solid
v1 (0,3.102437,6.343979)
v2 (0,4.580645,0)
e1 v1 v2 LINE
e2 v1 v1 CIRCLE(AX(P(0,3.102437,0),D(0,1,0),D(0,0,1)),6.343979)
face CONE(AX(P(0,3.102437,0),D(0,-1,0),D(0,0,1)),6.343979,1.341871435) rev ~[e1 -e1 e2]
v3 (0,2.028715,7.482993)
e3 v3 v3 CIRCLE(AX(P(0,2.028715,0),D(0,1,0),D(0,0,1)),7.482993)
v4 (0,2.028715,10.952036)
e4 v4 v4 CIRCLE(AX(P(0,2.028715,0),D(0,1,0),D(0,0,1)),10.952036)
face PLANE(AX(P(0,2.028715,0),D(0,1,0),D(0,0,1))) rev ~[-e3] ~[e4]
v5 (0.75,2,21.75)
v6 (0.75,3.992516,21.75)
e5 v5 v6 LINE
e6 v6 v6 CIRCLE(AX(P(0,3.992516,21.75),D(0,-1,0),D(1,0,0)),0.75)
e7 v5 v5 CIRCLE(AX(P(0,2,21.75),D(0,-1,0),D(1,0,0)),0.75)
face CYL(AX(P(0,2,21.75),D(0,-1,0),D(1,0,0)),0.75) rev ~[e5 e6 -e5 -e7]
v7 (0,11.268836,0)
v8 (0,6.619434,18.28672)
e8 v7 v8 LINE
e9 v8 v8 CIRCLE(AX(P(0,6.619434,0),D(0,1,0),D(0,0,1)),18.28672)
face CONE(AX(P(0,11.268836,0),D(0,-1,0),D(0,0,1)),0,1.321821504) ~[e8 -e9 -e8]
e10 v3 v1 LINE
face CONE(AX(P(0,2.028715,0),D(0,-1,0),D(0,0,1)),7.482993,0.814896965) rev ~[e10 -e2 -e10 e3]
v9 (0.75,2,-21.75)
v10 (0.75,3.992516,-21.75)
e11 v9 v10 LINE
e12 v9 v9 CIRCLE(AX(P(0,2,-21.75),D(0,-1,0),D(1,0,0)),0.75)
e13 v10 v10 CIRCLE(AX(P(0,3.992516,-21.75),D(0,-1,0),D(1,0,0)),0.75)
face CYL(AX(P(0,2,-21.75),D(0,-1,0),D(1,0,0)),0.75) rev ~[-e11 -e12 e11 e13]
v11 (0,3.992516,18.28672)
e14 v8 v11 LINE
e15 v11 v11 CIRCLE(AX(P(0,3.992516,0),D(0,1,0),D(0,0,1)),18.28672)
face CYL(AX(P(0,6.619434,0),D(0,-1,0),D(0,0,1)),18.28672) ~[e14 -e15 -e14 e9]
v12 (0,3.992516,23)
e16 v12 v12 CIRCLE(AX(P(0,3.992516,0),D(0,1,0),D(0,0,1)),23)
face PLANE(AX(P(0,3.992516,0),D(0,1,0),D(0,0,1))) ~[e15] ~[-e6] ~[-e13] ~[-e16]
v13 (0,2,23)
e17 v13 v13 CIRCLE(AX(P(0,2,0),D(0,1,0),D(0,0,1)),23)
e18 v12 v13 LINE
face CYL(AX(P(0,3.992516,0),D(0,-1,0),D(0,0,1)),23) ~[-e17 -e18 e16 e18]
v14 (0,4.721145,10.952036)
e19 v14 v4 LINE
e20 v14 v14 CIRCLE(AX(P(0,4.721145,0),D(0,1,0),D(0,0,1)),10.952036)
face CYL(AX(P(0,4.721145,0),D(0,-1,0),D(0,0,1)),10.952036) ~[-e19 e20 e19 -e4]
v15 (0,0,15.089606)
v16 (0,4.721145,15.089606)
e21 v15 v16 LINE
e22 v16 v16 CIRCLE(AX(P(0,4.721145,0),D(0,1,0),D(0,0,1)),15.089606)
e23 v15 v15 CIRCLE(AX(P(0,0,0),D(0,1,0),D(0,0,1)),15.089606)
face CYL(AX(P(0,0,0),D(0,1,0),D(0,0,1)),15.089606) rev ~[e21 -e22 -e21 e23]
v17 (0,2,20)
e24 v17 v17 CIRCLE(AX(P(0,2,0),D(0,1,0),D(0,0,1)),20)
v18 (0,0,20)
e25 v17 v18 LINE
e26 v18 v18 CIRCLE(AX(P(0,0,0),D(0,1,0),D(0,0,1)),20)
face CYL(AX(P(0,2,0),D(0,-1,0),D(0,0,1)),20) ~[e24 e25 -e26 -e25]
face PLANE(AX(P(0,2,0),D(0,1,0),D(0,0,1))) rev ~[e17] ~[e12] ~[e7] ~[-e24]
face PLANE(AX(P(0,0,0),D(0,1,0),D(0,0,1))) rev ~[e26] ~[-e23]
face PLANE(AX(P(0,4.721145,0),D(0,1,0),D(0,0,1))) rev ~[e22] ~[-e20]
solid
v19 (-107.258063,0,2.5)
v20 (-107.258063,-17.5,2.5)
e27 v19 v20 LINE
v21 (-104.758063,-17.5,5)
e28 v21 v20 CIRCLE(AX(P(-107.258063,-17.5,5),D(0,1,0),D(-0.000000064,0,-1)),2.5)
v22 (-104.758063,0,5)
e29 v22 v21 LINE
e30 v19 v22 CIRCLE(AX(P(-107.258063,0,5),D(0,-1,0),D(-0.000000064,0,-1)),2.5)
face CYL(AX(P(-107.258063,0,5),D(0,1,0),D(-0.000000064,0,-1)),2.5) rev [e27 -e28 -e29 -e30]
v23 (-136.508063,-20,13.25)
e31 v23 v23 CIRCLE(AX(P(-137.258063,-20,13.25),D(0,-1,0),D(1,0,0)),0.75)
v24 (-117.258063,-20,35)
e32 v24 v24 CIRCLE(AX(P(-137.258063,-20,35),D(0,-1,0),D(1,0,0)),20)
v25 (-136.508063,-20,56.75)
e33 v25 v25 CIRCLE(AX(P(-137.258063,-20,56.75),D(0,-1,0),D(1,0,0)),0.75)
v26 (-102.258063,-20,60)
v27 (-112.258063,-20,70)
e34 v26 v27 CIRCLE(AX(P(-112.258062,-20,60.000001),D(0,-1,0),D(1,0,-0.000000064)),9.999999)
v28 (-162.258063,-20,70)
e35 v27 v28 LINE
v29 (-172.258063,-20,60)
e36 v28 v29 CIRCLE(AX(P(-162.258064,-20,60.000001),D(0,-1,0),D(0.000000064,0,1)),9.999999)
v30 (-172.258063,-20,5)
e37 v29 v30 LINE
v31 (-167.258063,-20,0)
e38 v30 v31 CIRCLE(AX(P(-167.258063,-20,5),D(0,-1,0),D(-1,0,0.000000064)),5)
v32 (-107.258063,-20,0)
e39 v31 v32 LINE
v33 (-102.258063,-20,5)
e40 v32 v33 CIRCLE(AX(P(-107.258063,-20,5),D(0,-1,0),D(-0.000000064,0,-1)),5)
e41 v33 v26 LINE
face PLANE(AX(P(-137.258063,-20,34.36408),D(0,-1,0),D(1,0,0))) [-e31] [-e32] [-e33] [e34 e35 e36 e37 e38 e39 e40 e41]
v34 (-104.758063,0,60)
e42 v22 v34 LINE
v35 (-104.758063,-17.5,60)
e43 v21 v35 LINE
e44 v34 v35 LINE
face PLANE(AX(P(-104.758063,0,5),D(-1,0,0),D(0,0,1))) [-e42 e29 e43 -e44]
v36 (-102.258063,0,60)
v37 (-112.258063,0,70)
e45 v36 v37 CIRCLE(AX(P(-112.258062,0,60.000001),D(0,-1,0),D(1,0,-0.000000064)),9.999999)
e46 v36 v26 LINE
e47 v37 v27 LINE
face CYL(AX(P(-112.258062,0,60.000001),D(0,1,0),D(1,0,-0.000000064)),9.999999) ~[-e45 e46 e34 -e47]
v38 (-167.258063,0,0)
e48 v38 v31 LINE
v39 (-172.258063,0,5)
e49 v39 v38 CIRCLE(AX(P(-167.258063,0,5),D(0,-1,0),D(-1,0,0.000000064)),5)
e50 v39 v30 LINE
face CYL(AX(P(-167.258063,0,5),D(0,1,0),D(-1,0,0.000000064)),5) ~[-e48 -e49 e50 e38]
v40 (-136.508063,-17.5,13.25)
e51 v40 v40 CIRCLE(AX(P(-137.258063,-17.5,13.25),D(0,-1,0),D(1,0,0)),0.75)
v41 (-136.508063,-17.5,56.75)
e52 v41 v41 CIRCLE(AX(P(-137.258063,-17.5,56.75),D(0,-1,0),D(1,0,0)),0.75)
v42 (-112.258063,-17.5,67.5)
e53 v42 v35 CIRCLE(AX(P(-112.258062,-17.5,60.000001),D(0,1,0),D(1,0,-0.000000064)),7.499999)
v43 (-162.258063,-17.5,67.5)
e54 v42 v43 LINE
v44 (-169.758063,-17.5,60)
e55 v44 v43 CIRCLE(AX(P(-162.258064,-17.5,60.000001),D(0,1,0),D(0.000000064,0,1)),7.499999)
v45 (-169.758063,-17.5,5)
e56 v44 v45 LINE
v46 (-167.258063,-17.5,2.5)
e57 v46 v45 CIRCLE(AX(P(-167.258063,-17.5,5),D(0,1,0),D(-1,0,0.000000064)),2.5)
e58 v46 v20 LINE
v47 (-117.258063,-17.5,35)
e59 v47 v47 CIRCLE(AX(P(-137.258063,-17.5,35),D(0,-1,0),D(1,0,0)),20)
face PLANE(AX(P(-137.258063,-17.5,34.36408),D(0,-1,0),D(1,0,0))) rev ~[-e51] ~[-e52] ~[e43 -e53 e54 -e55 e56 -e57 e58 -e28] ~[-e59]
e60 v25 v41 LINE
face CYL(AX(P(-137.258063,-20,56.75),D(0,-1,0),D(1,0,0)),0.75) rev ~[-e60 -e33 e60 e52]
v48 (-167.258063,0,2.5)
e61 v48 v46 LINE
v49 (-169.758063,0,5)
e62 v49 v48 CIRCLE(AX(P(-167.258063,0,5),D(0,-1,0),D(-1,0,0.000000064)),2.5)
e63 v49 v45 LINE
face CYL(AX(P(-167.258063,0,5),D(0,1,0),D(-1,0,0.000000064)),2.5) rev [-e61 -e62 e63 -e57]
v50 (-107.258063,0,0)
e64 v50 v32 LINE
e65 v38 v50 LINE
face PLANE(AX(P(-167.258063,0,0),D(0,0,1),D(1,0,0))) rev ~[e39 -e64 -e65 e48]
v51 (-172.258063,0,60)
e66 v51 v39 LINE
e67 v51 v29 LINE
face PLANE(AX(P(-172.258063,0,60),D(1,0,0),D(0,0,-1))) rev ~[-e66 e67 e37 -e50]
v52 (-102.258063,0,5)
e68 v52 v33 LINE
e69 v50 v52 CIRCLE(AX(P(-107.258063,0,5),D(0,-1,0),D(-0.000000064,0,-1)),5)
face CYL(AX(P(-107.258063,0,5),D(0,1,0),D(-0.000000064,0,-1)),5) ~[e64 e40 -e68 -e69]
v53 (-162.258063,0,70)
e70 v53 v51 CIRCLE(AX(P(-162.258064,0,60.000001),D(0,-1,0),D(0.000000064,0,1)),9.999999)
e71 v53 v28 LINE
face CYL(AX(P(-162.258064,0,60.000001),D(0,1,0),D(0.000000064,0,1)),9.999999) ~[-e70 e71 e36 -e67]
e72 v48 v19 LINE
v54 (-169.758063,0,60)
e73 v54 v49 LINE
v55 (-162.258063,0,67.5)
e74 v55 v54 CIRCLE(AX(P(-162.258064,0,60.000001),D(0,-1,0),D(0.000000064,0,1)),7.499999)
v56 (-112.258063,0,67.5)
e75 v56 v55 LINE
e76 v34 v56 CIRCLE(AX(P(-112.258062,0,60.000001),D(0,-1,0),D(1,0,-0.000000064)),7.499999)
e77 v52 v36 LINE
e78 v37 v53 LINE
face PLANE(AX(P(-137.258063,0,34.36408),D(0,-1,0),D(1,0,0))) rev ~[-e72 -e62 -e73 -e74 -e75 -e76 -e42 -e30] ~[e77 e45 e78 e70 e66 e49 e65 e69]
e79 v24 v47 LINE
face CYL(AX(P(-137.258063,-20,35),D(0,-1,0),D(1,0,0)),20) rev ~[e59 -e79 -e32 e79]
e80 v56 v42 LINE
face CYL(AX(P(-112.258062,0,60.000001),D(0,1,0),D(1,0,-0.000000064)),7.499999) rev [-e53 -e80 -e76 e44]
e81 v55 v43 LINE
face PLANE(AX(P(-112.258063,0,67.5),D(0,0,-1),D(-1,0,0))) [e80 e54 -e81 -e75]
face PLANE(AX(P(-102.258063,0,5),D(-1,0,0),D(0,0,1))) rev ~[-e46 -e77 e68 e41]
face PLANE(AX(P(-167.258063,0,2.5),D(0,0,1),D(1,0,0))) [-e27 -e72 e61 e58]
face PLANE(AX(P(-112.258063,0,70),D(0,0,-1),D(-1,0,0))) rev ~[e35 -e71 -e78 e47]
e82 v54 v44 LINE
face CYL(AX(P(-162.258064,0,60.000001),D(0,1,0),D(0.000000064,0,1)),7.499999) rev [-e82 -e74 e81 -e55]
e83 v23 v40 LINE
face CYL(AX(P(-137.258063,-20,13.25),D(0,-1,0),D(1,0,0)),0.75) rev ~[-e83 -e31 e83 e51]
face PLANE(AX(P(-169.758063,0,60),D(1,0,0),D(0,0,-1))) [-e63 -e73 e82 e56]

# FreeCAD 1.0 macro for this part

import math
import FreeCAD as App
import Part
import Sketcher

V = App.Vector


def faces_at(feature, points):
    """Names of the faces that lie closest to the given points."""
    faces = feature.Shape.Faces
    near = lambda p: min(range(len(faces)), key=lambda i: faces[i].distToShape(Part.Vertex(*p))[0])
    return sorted({f"Face{near(p) + 1}" for p in points})

doc = App.newDocument("Part")
body = doc.addObject("PartDesign::Body", "Body")

sketch1 = body.newObject("Sketcher::SketchObject", "Sketch")
sketch1.AttachmentSupport = (doc.getObject("YZ_Plane"), [""])
sketch1.MapMode = "FlatFace"
sketch1.addGeometry(Part.LineSegment(V(2, 20, 0), V(0, 20, 0)), False)
sketch1.addGeometry(Part.LineSegment(V(0, 20, 0), V(0, 15.089606, 0)), False)
sketch1.addGeometry(Part.LineSegment(V(0, 15.089606, 0), V(4.721145, 15.089606, 0)), False)
sketch1.addGeometry(Part.LineSegment(V(4.721145, 15.089606, 0), V(4.721145, 10.952036, 0)), False)
sketch1.addGeometry(Part.LineSegment(V(4.721145, 10.952036, 0), V(2.028715, 10.952036, 0)), False)
sketch1.addGeometry(Part.LineSegment(V(2.028715, 10.952036, 0), V(2.028715, 7.482993, 0)), False)
sketch1.addGeometry(Part.LineSegment(V(2.028715, 7.482993, 0), V(3.102437, 6.343979, 0)), False)
sketch1.addGeometry(Part.LineSegment(V(3.102437, 6.343979, 0), V(4.580645, 0, 0)), False)
sketch1.addGeometry(Part.LineSegment(V(4.580645, 0, 0), V(11.268836, 0, 0)), False)
sketch1.addGeometry(Part.LineSegment(V(11.268836, 0, 0), V(6.619434, 18.28672, 0)), False)
sketch1.addGeometry(Part.LineSegment(V(6.619434, 18.28672, 0), V(3.992516, 18.28672, 0)), False)
sketch1.addGeometry(Part.LineSegment(V(3.992516, 18.28672, 0), V(3.992516, 23, 0)), False)
sketch1.addGeometry(Part.LineSegment(V(3.992516, 23, 0), V(2, 23, 0)), False)
sketch1.addGeometry(Part.LineSegment(V(2, 23, 0), V(2, 20, 0)), False)
sketch1.addConstraint(Sketcher.Constraint("Coincident", 0, 2, 1, 1))
sketch1.addConstraint(Sketcher.Constraint("Coincident", 1, 2, 2, 1))
sketch1.addConstraint(Sketcher.Constraint("Coincident", 2, 2, 3, 1))
sketch1.addConstraint(Sketcher.Constraint("Coincident", 3, 2, 4, 1))
sketch1.addConstraint(Sketcher.Constraint("Coincident", 4, 2, 5, 1))
sketch1.addConstraint(Sketcher.Constraint("Coincident", 5, 2, 6, 1))
sketch1.addConstraint(Sketcher.Constraint("Coincident", 6, 2, 7, 1))
sketch1.addConstraint(Sketcher.Constraint("Coincident", 7, 2, 8, 1))
sketch1.addConstraint(Sketcher.Constraint("Coincident", 8, 2, 9, 1))
sketch1.addConstraint(Sketcher.Constraint("Coincident", 9, 2, 10, 1))
sketch1.addConstraint(Sketcher.Constraint("Coincident", 10, 2, 11, 1))
sketch1.addConstraint(Sketcher.Constraint("Coincident", 11, 2, 12, 1))
sketch1.addConstraint(Sketcher.Constraint("Coincident", 12, 2, 13, 1))
sketch1.addConstraint(Sketcher.Constraint("Coincident", 13, 2, 0, 1))
sketch1.addConstraint(Sketcher.Constraint("Horizontal", 0))
sketch1.addConstraint(Sketcher.Constraint("Vertical", 1))
sketch1.addConstraint(Sketcher.Constraint("Horizontal", 2))
sketch1.addConstraint(Sketcher.Constraint("Vertical", 3))
sketch1.addConstraint(Sketcher.Constraint("Horizontal", 4))
sketch1.addConstraint(Sketcher.Constraint("Vertical", 5))
sketch1.addConstraint(Sketcher.Constraint("Horizontal", 8))
sketch1.addConstraint(Sketcher.Constraint("Horizontal", 10))
sketch1.addConstraint(Sketcher.Constraint("Vertical", 11))
sketch1.addConstraint(Sketcher.Constraint("Horizontal", 12))
sketch1.addConstraint(Sketcher.Constraint("Vertical", 13))
sketch1.addConstraint(Sketcher.Constraint("PointOnObject", 0, 2, -2))
sketch1.addConstraint(Sketcher.Constraint("PointOnObject", 7, 2, -1))
sketch1.addConstraint(Sketcher.Constraint("DistanceX", 0, 2, 0, 1, 2.0))
sketch1.addConstraint(Sketcher.Constraint("DistanceY", 13, 2, 13, 1, 3.0))
sketch1.addConstraint(Sketcher.Constraint("DistanceY", -1, 1, 0, 2, 20.0))
sketch1.addConstraint(Sketcher.Constraint("DistanceX", 4, 2, 4, 1, 2.69243))
sketch1.addConstraint(Sketcher.Constraint("DistanceX", 8, 1, 8, 2, 6.688191))
sketch1.addConstraint(Sketcher.Constraint("DistanceY", 3, 2, 3, 1, 4.13757))
sketch1.addConstraint(Sketcher.Constraint("DistanceY", 11, 1, 11, 2, 4.71328))
sketch1.addConstraint(Sketcher.Constraint("DistanceX", 7, 2, 3, 2, 0.1405))
sketch1.addConstraint(Sketcher.Constraint("DistanceX", 6, 2, 8, 2, 8.166399))
sketch1.addConstraint(Sketcher.Constraint("Distance", 6, 1.565322))
sketch1.addConstraint(Sketcher.Constraint("Distance", 7, 6.513921))
sketch1.addConstraint(Sketcher.Constraint("Distance", 9, 18.868521))
sketch1.addConstraint(Sketcher.Constraint("DistanceX", 2, 1, 2, 2, 4.721145))
sketch1.addConstraint(Sketcher.Constraint("DistanceX", 10, 2, 10, 1, 2.626918))
sketch1.addConstraint(Sketcher.Constraint("DistanceY", 1, 2, 1, 1, 4.910394))
revolution = body.newObject("PartDesign::Revolution", "Revolution")
revolution.Profile = sketch1
revolution.ReferenceAxis = (sketch1, ["H_Axis"])
revolution.Angle = 360

sketch2 = body.newObject("Sketcher::SketchObject", "Sketch001")
sketch2.AttachmentSupport = (doc.getObject("XZ_Plane"), [""])
sketch2.MapMode = "FlatFace"
sketch2.AttachmentOffset = App.Placement(V(0, 0, -2), App.Rotation())
sketch2.addGeometry(Part.Circle(V(0, 21.75, 0), V(0, 0, 1), 0.75), False)
sketch2.addGeometry(Part.Circle(V(0, -21.75, 0), V(0, 0, 1), 0.75), False)
sketch2.addConstraint(Sketcher.Constraint("Equal", 0, 1))
sketch2.addConstraint(Sketcher.Constraint("Symmetric", 0, 3, 1, 3, -1, 1))
sketch2.addConstraint(Sketcher.Constraint("PointOnObject", 0, 3, -2))
sketch2.addConstraint(Sketcher.Constraint("Diameter", 0, 1.5))
sketch2.addConstraint(Sketcher.Constraint("DistanceY", 1, 3, 0, 3, 43.5))
pocket1 = body.newObject("PartDesign::Pocket", "Pocket")
pocket1.Profile = sketch2
pocket1.Length = 25
body2 = doc.addObject("PartDesign::Body", "Body001")

sketch3 = body2.newObject("Sketcher::SketchObject", "Sketch002")
sketch3.AttachmentSupport = (doc.getObject("XZ_Plane001"), [""])
sketch3.MapMode = "FlatFace"
sketch3.addGeometry(Part.LineSegment(V(-112.258063, 70, 0), V(-162.258063, 70, 0)), False)
sketch3.addGeometry(Part.ArcOfCircle(Part.Circle(V(-162.258064, 60.000001, 0), V(0, 0, 1), 9.999999), math.radians(89.999996), math.radians(180.000004)), False)
sketch3.addGeometry(Part.LineSegment(V(-172.258063, 60, 0), V(-172.258063, 5, 0)), False)
sketch3.addGeometry(Part.ArcOfCircle(Part.Circle(V(-167.258063, 5, 0), V(0, 0, 1), 5), math.radians(179.999996), math.radians(270.000004)), False)
sketch3.addGeometry(Part.LineSegment(V(-167.258063, 0, 0), V(-107.258063, 0, 0)), False)
sketch3.addGeometry(Part.ArcOfCircle(Part.Circle(V(-107.258063, 5, 0), V(0, 0, 1), 5), math.radians(-90.000004), math.radians(0.000004)), False)
sketch3.addGeometry(Part.LineSegment(V(-102.258063, 5, 0), V(-102.258063, 60, 0)), False)
sketch3.addGeometry(Part.ArcOfCircle(Part.Circle(V(-112.258062, 60.000001, 0), V(0, 0, 1), 9.999999), math.radians(-0.000004), math.radians(90.000004)), False)
sketch3.addConstraint(Sketcher.Constraint("Tangent", 0, 2, 1, 1))
sketch3.addConstraint(Sketcher.Constraint("Tangent", 1, 2, 2, 1))
sketch3.addConstraint(Sketcher.Constraint("Tangent", 2, 2, 3, 1))
sketch3.addConstraint(Sketcher.Constraint("Tangent", 3, 2, 4, 1))
sketch3.addConstraint(Sketcher.Constraint("Tangent", 4, 2, 5, 1))
sketch3.addConstraint(Sketcher.Constraint("Tangent", 5, 2, 6, 1))
sketch3.addConstraint(Sketcher.Constraint("Tangent", 6, 2, 7, 1))
sketch3.addConstraint(Sketcher.Constraint("Tangent", 7, 2, 0, 1))
sketch3.addConstraint(Sketcher.Constraint("Horizontal", 0))
sketch3.addConstraint(Sketcher.Constraint("Vertical", 2))
sketch3.addConstraint(Sketcher.Constraint("Horizontal", 4))
sketch3.addConstraint(Sketcher.Constraint("Vertical", 6))
sketch3.addConstraint(Sketcher.Constraint("Equal", 3, 5))
sketch3.addConstraint(Sketcher.Constraint("Equal", 1, 7))
sketch3.addConstraint(Sketcher.Constraint("PointOnObject", 3, 2, -1))
sketch3.addConstraint(Sketcher.Constraint("Radius", 1, 9.999999))
sketch3.addConstraint(Sketcher.Constraint("Radius", 3, 5.0))
sketch3.addConstraint(Sketcher.Constraint("DistanceX", 0, 2, 0, 1, 50.0))
sketch3.addConstraint(Sketcher.Constraint("DistanceY", 2, 2, 2, 1, 55.0))
sketch3.addConstraint(Sketcher.Constraint("DistanceX", 1, 3, -1, 1, 162.258064))
pad1 = body2.newObject("PartDesign::Pad", "Pad")
pad1.Profile = sketch3
pad1.Length = 20
doc.recompute()

thickness = body2.newObject("PartDesign::Thickness", "Thickness")
thickness.Base = (pad1, faces_at(pad1, [(-137.258, 0, 35)]))
thickness.Value = 2.5
thickness.Reversed = True
thickness.Join = "Arc"

sketch4 = body2.newObject("Sketcher::SketchObject", "Sketch003")
sketch4.AttachmentSupport = (doc.getObject("XZ_Plane001"), [""])
sketch4.MapMode = "FlatFace"
sketch4.AttachmentOffset = App.Placement(V(0, 0, 20), App.Rotation())
sketch4.addGeometry(Part.Circle(V(-137.258063, 35, 0), V(0, 0, 1), 20), False)
sketch4.addConstraint(Sketcher.Constraint("Diameter", 0, 40.0))
sketch4.addConstraint(Sketcher.Constraint("DistanceY", -1, 1, 0, 3, 35.0))
sketch4.addConstraint(Sketcher.Constraint("DistanceX", 0, 3, -1, 1, 137.258063))
pocket2 = body2.newObject("PartDesign::Pocket", "Pocket001")
pocket2.Profile = sketch4
pocket2.Length = 25

sketch5 = body2.newObject("Sketcher::SketchObject", "Sketch004")
sketch5.AttachmentSupport = (doc.getObject("XZ_Plane001"), [""])
sketch5.MapMode = "FlatFace"
sketch5.AttachmentOffset = App.Placement(V(0, 0, 20), App.Rotation())
sketch5.addGeometry(Part.Circle(V(-137.258063, 56.75, 0), V(0, 0, 1), 0.75), False)
sketch5.addGeometry(Part.Circle(V(-137.258063, 13.25, 0), V(0, 0, 1), 0.75), False)
sketch5.addConstraint(Sketcher.Constraint("Equal", 0, 1))
sketch5.addConstraint(Sketcher.Constraint("Vertical", 0, 3, 1, 3))
sketch5.addConstraint(Sketcher.Constraint("Diameter", 0, 1.5))
sketch5.addConstraint(Sketcher.Constraint("DistanceY", 1, 3, 0, 3, 43.5))
sketch5.addConstraint(Sketcher.Constraint("DistanceY", -1, 1, 0, 3, 56.75))
sketch5.addConstraint(Sketcher.Constraint("DistanceX", 0, 3, -1, 1, 137.258063))
pocket3 = body2.newObject("PartDesign::Pocket", "Pocket002")
pocket3.Profile = sketch5
pocket3.Length = 25

doc.recompute()
